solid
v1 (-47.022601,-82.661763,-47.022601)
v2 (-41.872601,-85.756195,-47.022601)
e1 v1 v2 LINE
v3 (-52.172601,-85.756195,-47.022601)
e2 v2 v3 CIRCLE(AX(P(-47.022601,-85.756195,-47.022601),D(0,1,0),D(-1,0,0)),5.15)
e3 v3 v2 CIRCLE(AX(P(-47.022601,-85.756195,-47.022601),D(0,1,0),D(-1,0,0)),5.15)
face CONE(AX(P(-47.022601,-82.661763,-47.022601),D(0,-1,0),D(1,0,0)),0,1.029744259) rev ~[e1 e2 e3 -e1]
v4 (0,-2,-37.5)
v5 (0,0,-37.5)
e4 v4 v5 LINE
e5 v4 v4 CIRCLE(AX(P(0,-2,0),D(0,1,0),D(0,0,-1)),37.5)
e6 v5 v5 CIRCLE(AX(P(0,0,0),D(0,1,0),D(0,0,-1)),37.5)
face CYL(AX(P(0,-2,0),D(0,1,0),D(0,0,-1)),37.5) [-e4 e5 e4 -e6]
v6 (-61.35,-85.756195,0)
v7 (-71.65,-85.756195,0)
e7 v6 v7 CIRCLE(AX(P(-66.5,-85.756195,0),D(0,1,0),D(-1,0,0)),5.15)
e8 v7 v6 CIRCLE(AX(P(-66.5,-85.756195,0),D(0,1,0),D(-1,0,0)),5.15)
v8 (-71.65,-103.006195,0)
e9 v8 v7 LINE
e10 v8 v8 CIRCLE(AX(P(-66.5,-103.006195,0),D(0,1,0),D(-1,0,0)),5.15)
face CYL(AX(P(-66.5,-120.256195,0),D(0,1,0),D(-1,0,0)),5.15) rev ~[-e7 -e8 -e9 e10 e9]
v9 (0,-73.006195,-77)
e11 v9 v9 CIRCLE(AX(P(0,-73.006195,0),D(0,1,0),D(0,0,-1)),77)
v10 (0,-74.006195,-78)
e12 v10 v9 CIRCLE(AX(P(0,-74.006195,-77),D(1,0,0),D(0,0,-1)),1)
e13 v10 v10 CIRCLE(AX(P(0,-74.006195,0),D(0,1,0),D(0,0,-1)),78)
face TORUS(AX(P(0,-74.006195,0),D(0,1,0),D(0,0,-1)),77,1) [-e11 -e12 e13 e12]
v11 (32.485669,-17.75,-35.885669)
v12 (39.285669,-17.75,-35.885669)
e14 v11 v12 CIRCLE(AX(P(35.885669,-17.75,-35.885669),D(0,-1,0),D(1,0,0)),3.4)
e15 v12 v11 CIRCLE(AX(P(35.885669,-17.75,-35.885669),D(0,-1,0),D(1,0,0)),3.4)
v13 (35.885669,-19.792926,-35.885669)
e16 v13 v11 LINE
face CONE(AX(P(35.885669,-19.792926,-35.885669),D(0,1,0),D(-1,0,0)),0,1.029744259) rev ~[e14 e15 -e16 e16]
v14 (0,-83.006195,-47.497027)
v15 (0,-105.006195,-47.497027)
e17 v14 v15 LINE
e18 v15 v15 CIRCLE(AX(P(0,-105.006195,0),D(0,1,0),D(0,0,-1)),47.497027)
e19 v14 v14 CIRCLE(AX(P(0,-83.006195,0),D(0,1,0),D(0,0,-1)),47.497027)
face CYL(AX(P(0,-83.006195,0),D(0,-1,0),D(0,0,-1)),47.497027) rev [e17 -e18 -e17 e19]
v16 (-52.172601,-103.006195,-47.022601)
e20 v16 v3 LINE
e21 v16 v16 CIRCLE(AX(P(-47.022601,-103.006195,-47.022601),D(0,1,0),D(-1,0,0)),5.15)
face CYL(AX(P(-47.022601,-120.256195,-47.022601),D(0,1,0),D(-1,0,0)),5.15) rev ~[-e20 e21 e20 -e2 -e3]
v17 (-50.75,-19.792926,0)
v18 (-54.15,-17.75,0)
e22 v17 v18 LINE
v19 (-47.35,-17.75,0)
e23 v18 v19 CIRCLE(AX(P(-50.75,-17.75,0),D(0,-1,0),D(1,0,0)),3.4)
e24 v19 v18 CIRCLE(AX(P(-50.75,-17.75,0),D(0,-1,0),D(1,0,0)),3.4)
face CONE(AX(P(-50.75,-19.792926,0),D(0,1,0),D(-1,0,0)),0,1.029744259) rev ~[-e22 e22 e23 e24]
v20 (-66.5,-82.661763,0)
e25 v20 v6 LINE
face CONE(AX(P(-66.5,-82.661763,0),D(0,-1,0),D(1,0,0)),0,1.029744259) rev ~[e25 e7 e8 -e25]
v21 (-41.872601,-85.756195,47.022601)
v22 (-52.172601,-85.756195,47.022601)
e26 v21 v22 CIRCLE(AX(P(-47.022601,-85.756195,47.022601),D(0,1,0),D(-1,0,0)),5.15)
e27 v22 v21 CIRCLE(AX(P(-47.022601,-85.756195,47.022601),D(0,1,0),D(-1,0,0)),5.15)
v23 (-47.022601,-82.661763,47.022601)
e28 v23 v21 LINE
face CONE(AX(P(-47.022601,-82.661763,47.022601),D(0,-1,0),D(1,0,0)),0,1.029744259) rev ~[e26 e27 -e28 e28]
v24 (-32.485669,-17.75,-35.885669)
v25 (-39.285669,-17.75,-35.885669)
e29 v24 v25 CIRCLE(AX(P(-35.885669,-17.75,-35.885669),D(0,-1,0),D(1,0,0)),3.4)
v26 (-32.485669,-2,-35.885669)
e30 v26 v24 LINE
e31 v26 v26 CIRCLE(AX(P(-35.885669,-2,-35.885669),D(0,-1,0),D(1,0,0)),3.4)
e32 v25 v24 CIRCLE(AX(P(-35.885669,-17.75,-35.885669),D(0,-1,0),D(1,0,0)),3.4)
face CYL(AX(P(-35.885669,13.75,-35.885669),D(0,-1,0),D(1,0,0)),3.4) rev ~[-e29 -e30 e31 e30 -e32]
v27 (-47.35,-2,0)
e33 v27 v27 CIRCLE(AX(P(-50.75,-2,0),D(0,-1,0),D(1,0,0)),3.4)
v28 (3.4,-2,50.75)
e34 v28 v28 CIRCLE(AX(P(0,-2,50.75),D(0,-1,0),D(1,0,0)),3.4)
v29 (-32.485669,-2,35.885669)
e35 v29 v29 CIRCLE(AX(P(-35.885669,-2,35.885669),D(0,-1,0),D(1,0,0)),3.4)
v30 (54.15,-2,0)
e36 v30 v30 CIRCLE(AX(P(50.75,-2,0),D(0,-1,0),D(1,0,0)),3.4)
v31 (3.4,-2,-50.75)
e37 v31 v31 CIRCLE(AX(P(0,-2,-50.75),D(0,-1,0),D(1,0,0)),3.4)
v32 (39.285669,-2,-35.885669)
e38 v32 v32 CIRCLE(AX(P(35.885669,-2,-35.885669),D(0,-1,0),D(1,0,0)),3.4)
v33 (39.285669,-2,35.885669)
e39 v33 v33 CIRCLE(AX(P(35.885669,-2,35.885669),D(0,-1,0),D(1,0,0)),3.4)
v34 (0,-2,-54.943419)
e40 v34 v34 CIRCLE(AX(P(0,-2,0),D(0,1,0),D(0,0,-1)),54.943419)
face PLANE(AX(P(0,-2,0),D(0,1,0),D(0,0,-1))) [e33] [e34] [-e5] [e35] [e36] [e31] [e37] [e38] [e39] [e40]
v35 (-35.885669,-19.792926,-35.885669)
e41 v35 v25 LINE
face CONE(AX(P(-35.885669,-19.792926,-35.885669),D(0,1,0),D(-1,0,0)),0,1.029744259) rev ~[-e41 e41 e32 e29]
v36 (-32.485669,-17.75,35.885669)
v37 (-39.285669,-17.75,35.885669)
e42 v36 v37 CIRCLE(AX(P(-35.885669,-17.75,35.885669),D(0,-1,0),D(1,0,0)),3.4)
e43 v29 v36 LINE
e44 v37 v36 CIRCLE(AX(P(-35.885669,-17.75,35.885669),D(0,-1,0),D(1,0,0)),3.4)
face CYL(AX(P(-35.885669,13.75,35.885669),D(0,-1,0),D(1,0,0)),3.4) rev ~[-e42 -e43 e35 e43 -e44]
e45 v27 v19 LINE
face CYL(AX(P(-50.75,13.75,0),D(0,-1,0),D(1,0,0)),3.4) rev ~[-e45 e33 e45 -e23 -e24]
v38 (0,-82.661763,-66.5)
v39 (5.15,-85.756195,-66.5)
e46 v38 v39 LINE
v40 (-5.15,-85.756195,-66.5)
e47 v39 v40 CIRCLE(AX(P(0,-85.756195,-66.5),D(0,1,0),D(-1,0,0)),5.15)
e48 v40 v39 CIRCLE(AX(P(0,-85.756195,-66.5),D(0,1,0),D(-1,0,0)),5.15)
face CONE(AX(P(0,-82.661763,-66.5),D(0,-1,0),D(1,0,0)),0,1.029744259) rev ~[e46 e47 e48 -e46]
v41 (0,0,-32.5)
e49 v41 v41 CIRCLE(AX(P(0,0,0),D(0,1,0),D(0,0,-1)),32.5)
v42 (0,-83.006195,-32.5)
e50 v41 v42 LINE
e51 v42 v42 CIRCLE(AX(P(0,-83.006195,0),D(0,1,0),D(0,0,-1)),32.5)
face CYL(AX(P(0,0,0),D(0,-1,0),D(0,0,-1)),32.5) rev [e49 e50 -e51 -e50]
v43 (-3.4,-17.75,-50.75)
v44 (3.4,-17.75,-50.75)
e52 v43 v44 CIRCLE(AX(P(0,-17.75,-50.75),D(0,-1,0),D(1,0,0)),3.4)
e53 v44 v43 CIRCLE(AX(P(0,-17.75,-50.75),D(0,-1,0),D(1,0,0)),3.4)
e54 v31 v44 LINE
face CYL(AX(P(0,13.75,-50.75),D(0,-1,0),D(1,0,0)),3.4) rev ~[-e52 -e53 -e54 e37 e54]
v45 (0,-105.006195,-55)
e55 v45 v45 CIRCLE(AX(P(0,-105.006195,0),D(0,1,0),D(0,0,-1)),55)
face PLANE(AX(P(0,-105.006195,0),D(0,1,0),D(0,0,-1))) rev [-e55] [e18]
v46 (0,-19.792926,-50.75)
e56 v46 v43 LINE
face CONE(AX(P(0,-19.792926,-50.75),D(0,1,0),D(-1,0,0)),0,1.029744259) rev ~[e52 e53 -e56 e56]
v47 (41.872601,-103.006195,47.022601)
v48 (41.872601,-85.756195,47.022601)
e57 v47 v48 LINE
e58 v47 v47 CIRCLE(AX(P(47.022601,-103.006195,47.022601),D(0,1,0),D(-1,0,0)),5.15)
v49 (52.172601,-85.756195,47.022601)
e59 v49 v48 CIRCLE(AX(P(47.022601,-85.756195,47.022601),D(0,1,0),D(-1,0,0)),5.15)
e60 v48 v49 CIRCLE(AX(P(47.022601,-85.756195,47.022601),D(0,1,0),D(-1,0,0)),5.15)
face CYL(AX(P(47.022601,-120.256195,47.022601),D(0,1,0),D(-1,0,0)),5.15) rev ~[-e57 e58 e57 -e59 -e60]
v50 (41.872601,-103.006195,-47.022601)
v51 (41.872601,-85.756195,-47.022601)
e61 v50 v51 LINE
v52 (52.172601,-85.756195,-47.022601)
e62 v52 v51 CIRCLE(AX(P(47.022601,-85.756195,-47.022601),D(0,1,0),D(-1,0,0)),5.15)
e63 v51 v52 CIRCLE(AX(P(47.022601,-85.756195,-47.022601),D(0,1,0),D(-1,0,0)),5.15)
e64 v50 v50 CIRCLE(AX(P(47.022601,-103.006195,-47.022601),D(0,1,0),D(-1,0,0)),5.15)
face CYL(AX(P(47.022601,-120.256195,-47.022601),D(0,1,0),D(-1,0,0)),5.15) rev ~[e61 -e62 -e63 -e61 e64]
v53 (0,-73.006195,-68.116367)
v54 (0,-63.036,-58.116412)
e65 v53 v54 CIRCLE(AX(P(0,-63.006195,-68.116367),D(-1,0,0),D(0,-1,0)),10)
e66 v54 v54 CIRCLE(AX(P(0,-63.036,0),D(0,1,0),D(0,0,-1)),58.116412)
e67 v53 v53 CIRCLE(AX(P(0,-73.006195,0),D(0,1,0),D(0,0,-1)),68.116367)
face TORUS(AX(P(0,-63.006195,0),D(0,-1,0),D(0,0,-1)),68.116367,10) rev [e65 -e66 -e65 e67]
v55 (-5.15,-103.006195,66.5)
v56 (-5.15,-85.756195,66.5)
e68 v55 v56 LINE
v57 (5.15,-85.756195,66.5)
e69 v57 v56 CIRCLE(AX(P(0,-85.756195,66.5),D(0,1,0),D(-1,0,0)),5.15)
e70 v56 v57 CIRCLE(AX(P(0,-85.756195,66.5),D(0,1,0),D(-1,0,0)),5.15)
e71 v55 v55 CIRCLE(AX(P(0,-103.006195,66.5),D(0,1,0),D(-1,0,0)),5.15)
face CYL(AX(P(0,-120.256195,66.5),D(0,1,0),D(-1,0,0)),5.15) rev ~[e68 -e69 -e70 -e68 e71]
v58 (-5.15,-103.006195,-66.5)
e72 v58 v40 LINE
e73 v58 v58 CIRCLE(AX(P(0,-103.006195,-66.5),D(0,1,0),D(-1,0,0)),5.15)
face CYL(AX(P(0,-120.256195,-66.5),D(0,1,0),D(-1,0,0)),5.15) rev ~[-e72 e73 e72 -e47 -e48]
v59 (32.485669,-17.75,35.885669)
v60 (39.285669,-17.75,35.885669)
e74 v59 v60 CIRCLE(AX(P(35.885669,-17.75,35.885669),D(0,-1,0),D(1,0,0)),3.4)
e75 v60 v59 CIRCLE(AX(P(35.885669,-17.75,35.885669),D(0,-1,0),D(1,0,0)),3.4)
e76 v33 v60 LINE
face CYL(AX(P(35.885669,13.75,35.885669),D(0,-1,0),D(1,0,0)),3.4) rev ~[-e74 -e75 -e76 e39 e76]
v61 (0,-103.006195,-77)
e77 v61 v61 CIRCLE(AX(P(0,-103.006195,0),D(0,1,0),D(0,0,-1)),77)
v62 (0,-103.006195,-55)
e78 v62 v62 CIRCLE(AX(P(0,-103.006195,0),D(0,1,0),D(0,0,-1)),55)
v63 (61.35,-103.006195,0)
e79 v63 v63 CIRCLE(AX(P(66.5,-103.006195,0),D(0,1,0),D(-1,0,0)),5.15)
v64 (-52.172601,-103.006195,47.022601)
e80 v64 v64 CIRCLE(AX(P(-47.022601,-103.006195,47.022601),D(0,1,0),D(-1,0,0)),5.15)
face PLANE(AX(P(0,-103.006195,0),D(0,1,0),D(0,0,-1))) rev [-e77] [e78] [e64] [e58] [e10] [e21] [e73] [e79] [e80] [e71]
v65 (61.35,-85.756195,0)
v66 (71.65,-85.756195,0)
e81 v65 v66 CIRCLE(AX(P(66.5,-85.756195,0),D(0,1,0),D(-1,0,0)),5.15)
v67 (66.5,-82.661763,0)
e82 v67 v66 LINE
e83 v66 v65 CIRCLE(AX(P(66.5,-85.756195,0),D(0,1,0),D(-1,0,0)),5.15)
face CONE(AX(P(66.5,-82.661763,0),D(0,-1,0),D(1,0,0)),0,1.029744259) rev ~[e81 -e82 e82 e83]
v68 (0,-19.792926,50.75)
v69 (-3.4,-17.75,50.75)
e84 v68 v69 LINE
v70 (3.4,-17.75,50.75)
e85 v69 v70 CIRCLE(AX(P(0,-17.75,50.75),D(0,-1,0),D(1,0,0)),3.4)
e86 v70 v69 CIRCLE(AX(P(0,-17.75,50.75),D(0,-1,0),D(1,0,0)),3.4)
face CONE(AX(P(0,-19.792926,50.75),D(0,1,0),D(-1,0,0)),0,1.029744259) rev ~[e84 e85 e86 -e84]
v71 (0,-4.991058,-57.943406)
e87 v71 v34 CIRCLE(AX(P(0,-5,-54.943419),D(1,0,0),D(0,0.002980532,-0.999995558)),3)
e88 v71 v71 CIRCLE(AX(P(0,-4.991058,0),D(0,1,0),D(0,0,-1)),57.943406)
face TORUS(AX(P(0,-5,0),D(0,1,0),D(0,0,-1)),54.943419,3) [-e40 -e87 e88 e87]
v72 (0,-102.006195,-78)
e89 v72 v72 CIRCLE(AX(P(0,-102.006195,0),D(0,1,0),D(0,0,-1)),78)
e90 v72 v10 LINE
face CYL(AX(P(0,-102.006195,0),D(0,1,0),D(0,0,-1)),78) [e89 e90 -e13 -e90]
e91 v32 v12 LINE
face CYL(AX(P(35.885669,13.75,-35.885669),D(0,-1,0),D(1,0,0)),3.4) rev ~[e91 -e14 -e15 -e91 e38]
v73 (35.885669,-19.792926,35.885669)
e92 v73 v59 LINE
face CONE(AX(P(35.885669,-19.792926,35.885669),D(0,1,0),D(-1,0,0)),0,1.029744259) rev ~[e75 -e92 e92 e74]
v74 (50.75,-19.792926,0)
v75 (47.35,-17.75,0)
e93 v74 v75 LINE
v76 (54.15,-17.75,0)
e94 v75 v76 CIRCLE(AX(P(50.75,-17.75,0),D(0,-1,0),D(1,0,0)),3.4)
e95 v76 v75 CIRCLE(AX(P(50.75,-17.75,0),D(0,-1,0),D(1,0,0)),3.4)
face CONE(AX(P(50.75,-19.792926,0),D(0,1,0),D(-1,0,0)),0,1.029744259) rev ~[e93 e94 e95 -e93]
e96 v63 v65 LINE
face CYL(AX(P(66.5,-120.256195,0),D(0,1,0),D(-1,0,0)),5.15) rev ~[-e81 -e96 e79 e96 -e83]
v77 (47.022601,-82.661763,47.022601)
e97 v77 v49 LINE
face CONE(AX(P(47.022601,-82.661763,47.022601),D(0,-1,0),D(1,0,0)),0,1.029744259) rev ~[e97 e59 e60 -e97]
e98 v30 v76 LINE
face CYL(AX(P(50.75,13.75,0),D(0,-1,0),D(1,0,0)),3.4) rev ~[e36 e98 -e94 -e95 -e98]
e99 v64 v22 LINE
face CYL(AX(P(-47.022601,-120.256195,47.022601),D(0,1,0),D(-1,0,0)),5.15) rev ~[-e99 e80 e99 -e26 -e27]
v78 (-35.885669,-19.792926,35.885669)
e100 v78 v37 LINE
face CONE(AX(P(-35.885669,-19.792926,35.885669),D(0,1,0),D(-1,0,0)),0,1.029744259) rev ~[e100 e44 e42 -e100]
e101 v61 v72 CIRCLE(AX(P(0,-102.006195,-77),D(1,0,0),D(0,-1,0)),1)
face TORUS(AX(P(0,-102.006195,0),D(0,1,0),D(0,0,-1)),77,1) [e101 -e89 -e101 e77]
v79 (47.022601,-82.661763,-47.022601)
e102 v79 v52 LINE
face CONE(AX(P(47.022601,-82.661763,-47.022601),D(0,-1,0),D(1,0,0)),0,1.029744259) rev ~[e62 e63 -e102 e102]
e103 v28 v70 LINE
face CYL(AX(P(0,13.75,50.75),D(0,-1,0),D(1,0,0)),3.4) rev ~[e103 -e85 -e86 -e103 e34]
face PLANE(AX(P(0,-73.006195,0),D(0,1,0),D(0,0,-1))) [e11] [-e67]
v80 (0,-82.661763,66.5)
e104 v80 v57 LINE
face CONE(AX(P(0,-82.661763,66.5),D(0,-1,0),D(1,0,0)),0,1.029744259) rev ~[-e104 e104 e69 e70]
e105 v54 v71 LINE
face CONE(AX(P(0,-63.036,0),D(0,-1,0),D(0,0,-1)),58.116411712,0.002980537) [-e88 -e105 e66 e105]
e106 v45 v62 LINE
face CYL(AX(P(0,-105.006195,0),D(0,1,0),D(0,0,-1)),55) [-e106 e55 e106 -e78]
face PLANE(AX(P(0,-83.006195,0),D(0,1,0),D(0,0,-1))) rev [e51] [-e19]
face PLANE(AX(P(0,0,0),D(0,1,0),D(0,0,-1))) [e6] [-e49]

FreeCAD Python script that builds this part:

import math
import FreeCAD as App
import Part
import Sketcher
from FreeCAD import Vector

doc = App.newDocument("Part")
body = doc.addObject("PartDesign::Body", "Body")

# Sketch on YZ plane
sketch1 = body.newObject("Sketcher::SketchObject", "Sketch")
sketch1.AttachmentSupport = (doc.getObject("YZ_Plane"), [""])
sketch1.MapMode = "FlatFace"
sketch1.addGeometry(Part.LineSegment(Vector(0, -37.5, 0), Vector(0, -32.5, 0)), False)
sketch1.addGeometry(Part.LineSegment(Vector(0, -32.5, 0), Vector(-83, -32.5, 0)), False)
sketch1.addGeometry(Part.LineSegment(Vector(-83, -32.5, 0), Vector(-83, -47.5, 0)), False)
sketch1.addGeometry(Part.LineSegment(Vector(-83, -47.5, 0), Vector(-105, -47.5, 0)), False)
sketch1.addGeometry(Part.LineSegment(Vector(-105, -47.5, 0), Vector(-105, -55, 0)), False)
sketch1.addGeometry(Part.LineSegment(Vector(-105, -55, 0), Vector(-103, -55, 0)), False)
sketch1.addGeometry(Part.LineSegment(Vector(-103, -55, 0), Vector(-103, -77, 0)), False)
sketch1.addGeometry(Part.ArcOfCircle(Part.Circle(Vector(-102, -77, 0), Vector(0, 0, 1), 1), math.radians(180), math.radians(270)), False)
sketch1.addGeometry(Part.LineSegment(Vector(-102, -78, 0), Vector(-74, -78, 0)), False)
sketch1.addGeometry(Part.ArcOfCircle(Part.Circle(Vector(-74, -77, 0), Vector(0, 0, 1), 1), math.radians(-90), math.radians(0)), False)
sketch1.addGeometry(Part.LineSegment(Vector(-73, -77, 0), Vector(-73, -68.1, 0)), False)
sketch1.addGeometry(Part.ArcOfCircle(Part.Circle(Vector(-63, -68.1, 0), Vector(0, 0, 1), 10), math.radians(90), math.radians(180)), False)
sketch1.addGeometry(Part.LineSegment(Vector(-63, -58.1, 0), Vector(-5, -57.9, 0)), False)
sketch1.addGeometry(Part.ArcOfCircle(Part.Circle(Vector(-5, -54.9, 0), Vector(0, 0, 1), 3), math.radians(-90), math.radians(0)), False)
sketch1.addGeometry(Part.LineSegment(Vector(-2, -54.9, 0), Vector(-2, -37.5, 0)), False)
sketch1.addGeometry(Part.LineSegment(Vector(-2, -37.5, 0), Vector(0, -37.5, 0)), False)
sketch1.addConstraint(Sketcher.Constraint("Coincident", 0, 2, 1, 1))
sketch1.addConstraint(Sketcher.Constraint("Coincident", 1, 2, 2, 1))
sketch1.addConstraint(Sketcher.Constraint("Coincident", 2, 2, 3, 1))
sketch1.addConstraint(Sketcher.Constraint("Coincident", 3, 2, 4, 1))
sketch1.addConstraint(Sketcher.Constraint("Coincident", 4, 2, 5, 1))
sketch1.addConstraint(Sketcher.Constraint("Coincident", 5, 2, 6, 1))
sketch1.addConstraint(Sketcher.Constraint("Tangent", 6, 2, 7, 1))
sketch1.addConstraint(Sketcher.Constraint("Tangent", 7, 2, 8, 1))
sketch1.addConstraint(Sketcher.Constraint("Tangent", 8, 2, 9, 1))
sketch1.addConstraint(Sketcher.Constraint("Tangent", 9, 2, 10, 1))
sketch1.addConstraint(Sketcher.Constraint("Tangent", 10, 2, 11, 2))
sketch1.addConstraint(Sketcher.Constraint("Tangent", 11, 1, 12, 1))
sketch1.addConstraint(Sketcher.Constraint("Tangent", 12, 2, 13, 1))
sketch1.addConstraint(Sketcher.Constraint("Tangent", 13, 2, 14, 1))
sketch1.addConstraint(Sketcher.Constraint("Coincident", 14, 2, 15, 1))
sketch1.addConstraint(Sketcher.Constraint("Coincident", 15, 2, 0, 1))
sketch1.addConstraint(Sketcher.Constraint("Vertical", 0))
sketch1.addConstraint(Sketcher.Constraint("Horizontal", 1))
sketch1.addConstraint(Sketcher.Constraint("Vertical", 2))
sketch1.addConstraint(Sketcher.Constraint("Horizontal", 3))
sketch1.addConstraint(Sketcher.Constraint("Vertical", 4))
sketch1.addConstraint(Sketcher.Constraint("Horizontal", 5))
sketch1.addConstraint(Sketcher.Constraint("Vertical", 6))
sketch1.addConstraint(Sketcher.Constraint("Horizontal", 8))
sketch1.addConstraint(Sketcher.Constraint("Vertical", 10))
sketch1.addConstraint(Sketcher.Constraint("Vertical", 14))
sketch1.addConstraint(Sketcher.Constraint("Horizontal", 15))
sketch1.addConstraint(Sketcher.Constraint("Equal", 7, 9))
sketch1.addConstraint(Sketcher.Constraint("PointOnObject", 0, 2, -2))
sketch1.addConstraint(Sketcher.Constraint("Equal", 5, 15))
sketch1.addConstraint(Sketcher.Constraint("Equal", 3, 6))
sketch1.addConstraint(Sketcher.Constraint("Radius", 7, 1.0))
sketch1.addConstraint(Sketcher.Constraint("Radius", 11, 10.0))
sketch1.addConstraint(Sketcher.Constraint("Radius", 13, 3.0))
sketch1.addConstraint(Sketcher.Constraint("DistanceX", 3, 2, 3, 1, 22.0))
sketch1.addConstraint(Sketcher.Constraint("DistanceX", 5, 1, 5, 2, 2.0))
sketch1.addConstraint(Sketcher.Constraint("DistanceX", 8, 1, 8, 2, 28.0))
sketch1.addConstraint(Sketcher.Constraint("DistanceY", 0, 1, 0, 2, 5.0))
sketch1.addConstraint(Sketcher.Constraint("DistanceY", 7, 3, -1, 1, 77.0))
sketch1.addConstraint(Sketcher.Constraint("DistanceY", 0, 2, -1, 1, 32.5))
sketch1.addConstraint(Sketcher.Constraint("DistanceX", 11, 1, -1, 1, 63.036))
sketch1.addConstraint(Sketcher.Constraint("Distance", 12, 58.0452))
sketch1.addConstraint(Sketcher.Constraint("DistanceY", 14, 1, 14, 2, 17.443419))
sketch1.addConstraint(Sketcher.Constraint("DistanceY", 2, 2, 2, 1, 14.997027))
revolution = body.newObject("PartDesign::Revolution", "Revolution")
revolution.Profile = sketch1
revolution.ReferenceAxis = (sketch1, ["H_Axis"])
revolution.Angle = 360

# Sketch on XZ plane
sketch2 = body.newObject("Sketcher::SketchObject", "Sketch001")
sketch2.AttachmentSupport = (doc.getObject("XZ_Plane"), [""])
sketch2.MapMode = "FlatFace"
sketch2.AttachmentOffset = App.Placement(Vector(0, 0, 103.006195), App.Rotation())
sketch2.addGeometry(Part.Circle(Vector(0, 66, 0), Vector(0, 0, 1), 5), False)
sketch2.addGeometry(Part.Circle(Vector(47, 47, 0), Vector(0, 0, 1), 5), False)
sketch2.addGeometry(Part.Circle(Vector(66, 0, 0), Vector(0, 0, 1), 5), False)
sketch2.addGeometry(Part.Circle(Vector(47, -47, 0), Vector(0, 0, 1), 5), False)
sketch2.addGeometry(Part.Circle(Vector(0, -66, 0), Vector(0, 0, 1), 5), False)
sketch2.addGeometry(Part.Circle(Vector(-47, -47, 0), Vector(0, 0, 1), 5), False)
sketch2.addGeometry(Part.Circle(Vector(-66, 0, 0), Vector(0, 0, 1), 5), False)
sketch2.addGeometry(Part.Circle(Vector(-47, 47, 0), Vector(0, 0, 1), 5), False)
sketch2.addConstraint(Sketcher.Constraint("Equal", 0, 1))
sketch2.addConstraint(Sketcher.Constraint("Equal", 1, 2))
sketch2.addConstraint(Sketcher.Constraint("Equal", 2, 3))
sketch2.addConstraint(Sketcher.Constraint("Equal", 3, 4))
sketch2.addConstraint(Sketcher.Constraint("Equal", 4, 5))
sketch2.addConstraint(Sketcher.Constraint("Equal", 5, 6))
sketch2.addConstraint(Sketcher.Constraint("Equal", 6, 7))
sketch2.addConstraint(Sketcher.Constraint("Symmetric", 0, 3, 4, 3, -1, 1))
sketch2.addConstraint(Sketcher.Constraint("Symmetric", 1, 3, 5, 3, -1, 1))
sketch2.addConstraint(Sketcher.Constraint("Symmetric", 2, 3, 6, 3, -1, 1))
sketch2.addConstraint(Sketcher.Constraint("Symmetric", 3, 3, 7, 3, -1, 1))
sketch2.addConstraint(Sketcher.Constraint("Symmetric", 3, 3, 5, 3, -2))
sketch2.addConstraint(Sketcher.Constraint("PointOnObject", 0, 3, -2))
sketch2.addConstraint(Sketcher.Constraint("PointOnObject", 2, 3, -1))
sketch2.addConstraint(Sketcher.Constraint("Diameter", 0, 10.3))
sketch2.addConstraint(Sketcher.Constraint("DistanceY", 4, 3, 0, 3, 133.0))
sketch2.addConstraint(Sketcher.Constraint("DistanceX", -1, 1, 2, 3, 66.5))
sketch2.addConstraint(Sketcher.Constraint("DistanceX", -1, 1, 1, 3, 47.022601))
sketch2.addConstraint(Sketcher.Constraint("DistanceY", -1, 1, 1, 3, 47.022601))
doc.recompute()
hole = body.newObject("PartDesign::Hole", "Hole")
hole.Profile = sketch2
hole.ThreadType = "None"
hole.Diameter = 10.3
hole.DepthType = "Dimension"
hole.Depth = 17.25
hole.DrillPoint = "Angled"
hole.DrillPointAngle = 118

# Sketch on XZ plane
sketch3 = body.newObject("Sketcher::SketchObject", "Sketch002")
sketch3.AttachmentSupport = (doc.getObject("XZ_Plane"), [""])
sketch3.MapMode = "FlatFace"
sketch3.AttachmentOffset = App.Placement(Vector(0, 0, 2), App.Rotation())
sketch3.addGeometry(Part.Circle(Vector(0, 50.8, 0), Vector(0, 0, 1), 3.4), False)
sketch3.addGeometry(Part.Circle(Vector(-35.9, 35.9, 0), Vector(0, 0, 1), 3.4), False)
sketch3.addGeometry(Part.Circle(Vector(-50.8, 0, 0), Vector(0, 0, 1), 3.4), False)
sketch3.addGeometry(Part.Circle(Vector(-35.9, -35.9, 0), Vector(0, 0, 1), 3.4), False)
sketch3.addGeometry(Part.Circle(Vector(0, -50.8, 0), Vector(0, 0, 1), 3.4), False)
sketch3.addGeometry(Part.Circle(Vector(35.9, -35.9, 0), Vector(0, 0, 1), 3.4), False)
sketch3.addGeometry(Part.Circle(Vector(50.8, 0, 0), Vector(0, 0, 1), 3.4), False)
sketch3.addGeometry(Part.Circle(Vector(35.9, 35.9, 0), Vector(0, 0, 1), 3.4), False)
sketch3.addConstraint(Sketcher.Constraint("Equal", 0, 1))
sketch3.addConstraint(Sketcher.Constraint("Equal", 1, 2))
sketch3.addConstraint(Sketcher.Constraint("Equal", 2, 3))
sketch3.addConstraint(Sketcher.Constraint("Equal", 3, 4))
sketch3.addConstraint(Sketcher.Constraint("Equal", 4, 5))
sketch3.addConstraint(Sketcher.Constraint("Equal", 5, 6))
sketch3.addConstraint(Sketcher.Constraint("Equal", 6, 7))
sketch3.addConstraint(Sketcher.Constraint("Symmetric", 0, 3, 4, 3, -1, 1))
sketch3.addConstraint(Sketcher.Constraint("Symmetric", 1, 3, 5, 3, -1, 1))
sketch3.addConstraint(Sketcher.Constraint("Symmetric", 2, 3, 6, 3, -1, 1))
sketch3.addConstraint(Sketcher.Constraint("Symmetric", 3, 3, 7, 3, -1, 1))
sketch3.addConstraint(Sketcher.Constraint("Symmetric", 3, 3, 5, 3, -2))
sketch3.addConstraint(Sketcher.Constraint("PointOnObject", 0, 3, -2))
sketch3.addConstraint(Sketcher.Constraint("PointOnObject", 2, 3, -1))
sketch3.addConstraint(Sketcher.Constraint("Diameter", 0, 6.8))
sketch3.addConstraint(Sketcher.Constraint("DistanceY", 4, 3, 0, 3, 101.5))
sketch3.addConstraint(Sketcher.Constraint("DistanceX", 2, 3, -1, 1, 50.75))
sketch3.addConstraint(Sketcher.Constraint("DistanceX", 1, 3, -1, 1, 35.885669))
sketch3.addConstraint(Sketcher.Constraint("DistanceY", -1, 1, 1, 3, 35.885669))
doc.recompute()
hole2 = body.newObject("PartDesign::Hole", "Hole001")
hole2.Profile = sketch3
hole2.ThreadType = "None"
hole2.Diameter = 6.8
hole2.DepthType = "Dimension"
hole2.Depth = 15.75
hole2.DrillPoint = "Angled"
hole2.DrillPointAngle = 118
hole2.Reversed = True

doc.recompute()
